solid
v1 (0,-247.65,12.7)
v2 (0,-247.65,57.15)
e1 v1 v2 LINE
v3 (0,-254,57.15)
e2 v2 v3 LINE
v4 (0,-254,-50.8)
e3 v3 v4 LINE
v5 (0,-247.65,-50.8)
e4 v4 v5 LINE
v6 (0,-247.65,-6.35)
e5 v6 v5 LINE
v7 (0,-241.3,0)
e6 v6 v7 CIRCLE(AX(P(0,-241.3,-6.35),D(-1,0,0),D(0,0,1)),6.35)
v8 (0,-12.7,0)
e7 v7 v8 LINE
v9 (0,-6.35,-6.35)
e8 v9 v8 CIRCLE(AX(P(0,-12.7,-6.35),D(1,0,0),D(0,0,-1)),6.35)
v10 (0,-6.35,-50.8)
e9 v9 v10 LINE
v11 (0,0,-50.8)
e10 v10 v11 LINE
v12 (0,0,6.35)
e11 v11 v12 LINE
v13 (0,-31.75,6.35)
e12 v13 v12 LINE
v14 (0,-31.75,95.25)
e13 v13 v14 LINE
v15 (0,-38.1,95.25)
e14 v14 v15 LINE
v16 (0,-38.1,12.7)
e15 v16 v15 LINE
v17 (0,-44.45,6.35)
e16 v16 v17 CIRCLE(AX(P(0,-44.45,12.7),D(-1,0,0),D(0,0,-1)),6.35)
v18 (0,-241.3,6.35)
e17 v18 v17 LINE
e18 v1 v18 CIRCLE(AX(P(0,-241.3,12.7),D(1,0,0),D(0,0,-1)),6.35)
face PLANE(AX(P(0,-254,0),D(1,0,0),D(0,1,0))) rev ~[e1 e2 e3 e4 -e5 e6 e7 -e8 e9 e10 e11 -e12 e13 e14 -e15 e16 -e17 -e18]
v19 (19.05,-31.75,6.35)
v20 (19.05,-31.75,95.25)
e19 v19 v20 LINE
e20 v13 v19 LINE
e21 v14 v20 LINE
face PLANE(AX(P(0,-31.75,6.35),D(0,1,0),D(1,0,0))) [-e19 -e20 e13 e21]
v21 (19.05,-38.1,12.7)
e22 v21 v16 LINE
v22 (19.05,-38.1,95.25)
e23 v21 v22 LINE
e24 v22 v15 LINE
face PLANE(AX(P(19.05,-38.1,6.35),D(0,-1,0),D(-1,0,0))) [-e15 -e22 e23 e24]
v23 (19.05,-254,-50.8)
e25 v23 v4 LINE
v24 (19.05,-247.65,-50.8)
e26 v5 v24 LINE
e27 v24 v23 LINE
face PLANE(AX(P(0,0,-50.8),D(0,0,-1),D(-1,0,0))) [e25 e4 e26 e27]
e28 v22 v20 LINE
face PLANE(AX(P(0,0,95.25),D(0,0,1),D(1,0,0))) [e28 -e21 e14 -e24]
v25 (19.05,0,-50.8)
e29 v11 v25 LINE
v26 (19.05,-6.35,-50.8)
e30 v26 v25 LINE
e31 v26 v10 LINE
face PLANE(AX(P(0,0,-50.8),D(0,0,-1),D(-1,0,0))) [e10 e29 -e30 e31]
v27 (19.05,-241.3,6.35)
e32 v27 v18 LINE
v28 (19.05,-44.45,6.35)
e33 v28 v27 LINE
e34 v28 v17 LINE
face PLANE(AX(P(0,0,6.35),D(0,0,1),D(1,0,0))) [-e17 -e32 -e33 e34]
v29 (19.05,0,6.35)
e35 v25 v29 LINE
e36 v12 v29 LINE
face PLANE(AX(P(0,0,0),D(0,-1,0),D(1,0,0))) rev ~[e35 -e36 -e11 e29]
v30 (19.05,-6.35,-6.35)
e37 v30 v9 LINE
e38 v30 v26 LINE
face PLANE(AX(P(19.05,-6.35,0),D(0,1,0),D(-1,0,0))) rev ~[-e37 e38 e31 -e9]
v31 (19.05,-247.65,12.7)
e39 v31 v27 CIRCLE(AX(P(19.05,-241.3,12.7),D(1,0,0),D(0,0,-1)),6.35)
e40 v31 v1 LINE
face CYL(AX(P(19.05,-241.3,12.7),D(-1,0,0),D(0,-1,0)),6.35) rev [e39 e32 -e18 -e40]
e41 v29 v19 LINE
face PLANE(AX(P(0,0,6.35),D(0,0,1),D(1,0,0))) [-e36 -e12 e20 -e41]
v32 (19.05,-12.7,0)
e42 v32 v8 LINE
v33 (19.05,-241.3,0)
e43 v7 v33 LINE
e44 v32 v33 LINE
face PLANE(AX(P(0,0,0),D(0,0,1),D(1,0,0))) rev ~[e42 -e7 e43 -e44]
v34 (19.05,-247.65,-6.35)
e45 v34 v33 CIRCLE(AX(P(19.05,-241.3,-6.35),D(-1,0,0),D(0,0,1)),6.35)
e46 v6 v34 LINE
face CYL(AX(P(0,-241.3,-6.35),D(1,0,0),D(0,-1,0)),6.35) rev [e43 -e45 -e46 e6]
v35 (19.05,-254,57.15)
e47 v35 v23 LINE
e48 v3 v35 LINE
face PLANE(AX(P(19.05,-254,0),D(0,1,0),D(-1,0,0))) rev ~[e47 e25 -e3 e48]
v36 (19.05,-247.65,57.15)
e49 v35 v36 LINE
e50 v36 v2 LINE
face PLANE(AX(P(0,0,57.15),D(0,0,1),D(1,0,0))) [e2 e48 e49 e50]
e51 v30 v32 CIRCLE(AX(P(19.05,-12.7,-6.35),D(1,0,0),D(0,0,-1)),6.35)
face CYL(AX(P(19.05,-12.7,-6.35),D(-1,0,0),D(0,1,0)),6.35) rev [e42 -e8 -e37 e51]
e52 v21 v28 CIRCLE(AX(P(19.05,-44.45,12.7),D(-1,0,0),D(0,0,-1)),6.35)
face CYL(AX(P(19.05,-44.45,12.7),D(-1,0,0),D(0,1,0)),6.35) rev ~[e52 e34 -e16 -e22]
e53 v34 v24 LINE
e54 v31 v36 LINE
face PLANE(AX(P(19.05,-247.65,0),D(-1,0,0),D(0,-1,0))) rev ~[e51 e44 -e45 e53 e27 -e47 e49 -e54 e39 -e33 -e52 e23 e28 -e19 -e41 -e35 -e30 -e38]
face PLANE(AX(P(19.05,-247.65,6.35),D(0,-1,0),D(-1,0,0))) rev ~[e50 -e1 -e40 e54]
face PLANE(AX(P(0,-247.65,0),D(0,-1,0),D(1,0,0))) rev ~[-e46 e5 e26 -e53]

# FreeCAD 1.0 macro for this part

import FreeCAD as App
import Part
import Sketcher
from FreeCAD import Vector
Q = App.Units.Quantity


def edges_at(feature, points):
    """Names of the edges that pass closest to the given points."""
    edges = feature.Shape.Edges
    near = lambda p: min(range(len(edges)), key=lambda i: edges[i].distToShape(Part.Vertex(*p))[0])
    return sorted({f"Edge{near(p) + 1}" for p in points})

doc = App.newDocument("Part")
body = doc.addObject("PartDesign::Body", "Body")

# Sketch on XY plane
sketch1 = body.newObject("Sketcher::SketchObject", "Sketch")
sketch1.AttachmentSupport = (doc.getObject("XY_Plane"), [""])
sketch1.MapMode = "FlatFace"
sketch1.addGeometry([
    Part.LineSegment(Vector(19, 0, 0), Vector(0, 0, 0)),
    Part.LineSegment(Vector(0, 0, 0), Vector(0, -254, 0)),
    Part.LineSegment(Vector(0, -254, 0), Vector(19, -254, 0)),
    Part.LineSegment(Vector(19, -254, 0), Vector(19, 0, 0)),
], False)
sketch1.addConstraint([
    Sketcher.Constraint("Coincident", 0, 2, 1, 1),
    Sketcher.Constraint("Coincident", 1, 2, 2, 1),
    Sketcher.Constraint("Coincident", 2, 2, 3, 1),
    Sketcher.Constraint("Coincident", 3, 2, 0, 1),
    Sketcher.Constraint("Horizontal", 0),
    Sketcher.Constraint("Vertical", 1),
    Sketcher.Constraint("Horizontal", 2),
    Sketcher.Constraint("Vertical", 3),
    Sketcher.Constraint("Coincident", 0, 2, -1, 1),
    Sketcher.Constraint("DistanceY", 1, 2, 1, 1, Q("10 in")),
    Sketcher.Constraint("DistanceX", 0, 2, 0, 1, Q("0.75 in")),
])
pad1 = body.newObject("PartDesign::Pad", "Pad")
pad1.Profile = sketch1
pad1.Length = Q("0.25 in")

# Sketch on XY plane
sketch2 = body.newObject("Sketcher::SketchObject", "Sketch001")
sketch2.AttachmentSupport = (doc.getObject("XY_Plane"), [""])
sketch2.MapMode = "FlatFace"
sketch2.AttachmentOffset = App.Placement(Vector(0, 0, 0.25 * 25.4), App.Rotation())
sketch2.addGeometry([
    Part.LineSegment(Vector(19, -38, 0), Vector(19, -32, 0)),
    Part.LineSegment(Vector(19, -32, 0), Vector(0, -32, 0)),
    Part.LineSegment(Vector(0, -32, 0), Vector(0, -38, 0)),
    Part.LineSegment(Vector(0, -38, 0), Vector(19, -38, 0)),
], False)
sketch2.addConstraint([
    Sketcher.Constraint("Coincident", 0, 2, 1, 1),
    Sketcher.Constraint("Coincident", 1, 2, 2, 1),
    Sketcher.Constraint("Coincident", 2, 2, 3, 1),
    Sketcher.Constraint("Coincident", 3, 2, 0, 1),
    Sketcher.Constraint("Vertical", 0),
    Sketcher.Constraint("Horizontal", 1),
    Sketcher.Constraint("Vertical", 2),
    Sketcher.Constraint("Horizontal", 3),
    Sketcher.Constraint("PointOnObject", 1, 2, -2),
    Sketcher.Constraint("DistanceY", 0, 1, 0, 2, Q("0.25 in")),
    Sketcher.Constraint("DistanceY", 0, 2, -1, 1, Q("1.25 in")),
    Sketcher.Constraint("DistanceX", 1, 2, 1, 1, Q("0.75 in")),
])
pad2 = body.newObject("PartDesign::Pad", "Pad001")
pad2.Profile = sketch2
pad2.Length = Q("3.5 in")

# Sketch on XY plane
sketch3 = body.newObject("Sketcher::SketchObject", "Sketch002")
sketch3.AttachmentSupport = (doc.getObject("XY_Plane"), [""])
sketch3.MapMode = "FlatFace"
sketch3.addGeometry([
    Part.LineSegment(Vector(19, 0, 0), Vector(19, -6, 0)),
    Part.LineSegment(Vector(19, -6, 0), Vector(0, -6, 0)),
    Part.LineSegment(Vector(0, -6, 0), Vector(0, 0, 0)),
    Part.LineSegment(Vector(0, 0, 0), Vector(19, 0, 0)),
], False)
sketch3.addConstraint([
    Sketcher.Constraint("Coincident", 0, 2, 1, 1),
    Sketcher.Constraint("Coincident", 1, 2, 2, 1),
    Sketcher.Constraint("Coincident", 2, 2, 3, 1),
    Sketcher.Constraint("Coincident", 3, 2, 0, 1),
    Sketcher.Constraint("Vertical", 0),
    Sketcher.Constraint("Horizontal", 1),
    Sketcher.Constraint("Vertical", 2),
    Sketcher.Constraint("Horizontal", 3),
    Sketcher.Constraint("Coincident", 2, 2, -1, 1),
    Sketcher.Constraint("DistanceY", 0, 2, 0, 1, Q("0.25 in")),
    Sketcher.Constraint("DistanceX", 1, 2, 1, 1, Q("0.75 in")),
])
pad3 = body.newObject("PartDesign::Pad", "Pad002")
pad3.Profile = sketch3
pad3.Length = Q("2 in")
pad3.Reversed = True
doc.recompute()

fillet = body.newObject("PartDesign::Fillet", "Fillet")
fillet.Base = (pad3, edges_at(pad3, [(9.525, -38.1, 6.35), (9.525, -6.35, 0)]))
fillet.Radius = Q("0.25 in")

# Sketch on XY plane
sketch4 = body.newObject("Sketcher::SketchObject", "Sketch003")
sketch4.AttachmentSupport = (doc.getObject("XY_Plane"), [""])
sketch4.MapMode = "FlatFace"
sketch4.AttachmentOffset = App.Placement(Vector(0, 0, 0.25 * 25.4), App.Rotation())
sketch4.addGeometry([
    Part.LineSegment(Vector(0, -248, 0), Vector(0, -254, 0)),
    Part.LineSegment(Vector(0, -254, 0), Vector(19, -254, 0)),
    Part.LineSegment(Vector(19, -254, 0), Vector(19, -248, 0)),
    Part.LineSegment(Vector(19, -248, 0), Vector(0, -248, 0)),
], False)
sketch4.addConstraint([
    Sketcher.Constraint("Coincident", 0, 2, 1, 1),
    Sketcher.Constraint("Coincident", 1, 2, 2, 1),
    Sketcher.Constraint("Coincident", 2, 2, 3, 1),
    Sketcher.Constraint("Coincident", 3, 2, 0, 1),
    Sketcher.Constraint("Vertical", 0),
    Sketcher.Constraint("Horizontal", 1),
    Sketcher.Constraint("Vertical", 2),
    Sketcher.Constraint("Horizontal", 3),
    Sketcher.Constraint("PointOnObject", 0, 2, -2),
    Sketcher.Constraint("DistanceX", 1, 1, 1, 2, Q("0.75 in")),
    Sketcher.Constraint("DistanceY", 0, 2, 0, 1, Q("0.25 in")),
    Sketcher.Constraint("DistanceY", 0, 2, -1, 1, Q("10 in")),
])
pad4 = body.newObject("PartDesign::Pad", "Pad003")
pad4.Profile = sketch4
pad4.Length = Q("2 in")

# Sketch on XY plane
sketch5 = body.newObject("Sketcher::SketchObject", "Sketch004")
sketch5.AttachmentSupport = (doc.getObject("XY_Plane"), [""])
sketch5.MapMode = "FlatFace"
sketch5.addGeometry([
    Part.LineSegment(Vector(19, -248, 0), Vector(19, -254, 0)),
    Part.LineSegment(Vector(19, -254, 0), Vector(0, -254, 0)),
    Part.LineSegment(Vector(0, -254, 0), Vector(0, -248, 0)),
    Part.LineSegment(Vector(0, -248, 0), Vector(19, -248, 0)),
], False)
sketch5.addConstraint([
    Sketcher.Constraint("Coincident", 0, 2, 1, 1),
    Sketcher.Constraint("Coincident", 1, 2, 2, 1),
    Sketcher.Constraint("Coincident", 2, 2, 3, 1),
    Sketcher.Constraint("Coincident", 3, 2, 0, 1),
    Sketcher.Constraint("Vertical", 0),
    Sketcher.Constraint("Horizontal", 1),
    Sketcher.Constraint("Vertical", 2),
    Sketcher.Constraint("Horizontal", 3),
    Sketcher.Constraint("PointOnObject", 1, 2, -2),
    Sketcher.Constraint("DistanceY", 0, 2, 0, 1, Q("0.25 in")),
    Sketcher.Constraint("DistanceY", 0, 2, -1, 1, Q("10 in")),
    Sketcher.Constraint("DistanceX", 1, 2, 1, 1, Q("0.75 in")),
])
pad5 = body.newObject("PartDesign::Pad", "Pad004")
pad5.Profile = sketch5
pad5.Length = Q("2 in")
pad5.Reversed = True
doc.recompute()

fillet2 = body.newObject("PartDesign::Fillet", "Fillet001")
fillet2.Base = (pad5, edges_at(pad5, [(9.525, -247.65, 0), (9.525, -247.65, 6.35)]))
fillet2.Radius = Q("0.25 in")

doc.recompute()
